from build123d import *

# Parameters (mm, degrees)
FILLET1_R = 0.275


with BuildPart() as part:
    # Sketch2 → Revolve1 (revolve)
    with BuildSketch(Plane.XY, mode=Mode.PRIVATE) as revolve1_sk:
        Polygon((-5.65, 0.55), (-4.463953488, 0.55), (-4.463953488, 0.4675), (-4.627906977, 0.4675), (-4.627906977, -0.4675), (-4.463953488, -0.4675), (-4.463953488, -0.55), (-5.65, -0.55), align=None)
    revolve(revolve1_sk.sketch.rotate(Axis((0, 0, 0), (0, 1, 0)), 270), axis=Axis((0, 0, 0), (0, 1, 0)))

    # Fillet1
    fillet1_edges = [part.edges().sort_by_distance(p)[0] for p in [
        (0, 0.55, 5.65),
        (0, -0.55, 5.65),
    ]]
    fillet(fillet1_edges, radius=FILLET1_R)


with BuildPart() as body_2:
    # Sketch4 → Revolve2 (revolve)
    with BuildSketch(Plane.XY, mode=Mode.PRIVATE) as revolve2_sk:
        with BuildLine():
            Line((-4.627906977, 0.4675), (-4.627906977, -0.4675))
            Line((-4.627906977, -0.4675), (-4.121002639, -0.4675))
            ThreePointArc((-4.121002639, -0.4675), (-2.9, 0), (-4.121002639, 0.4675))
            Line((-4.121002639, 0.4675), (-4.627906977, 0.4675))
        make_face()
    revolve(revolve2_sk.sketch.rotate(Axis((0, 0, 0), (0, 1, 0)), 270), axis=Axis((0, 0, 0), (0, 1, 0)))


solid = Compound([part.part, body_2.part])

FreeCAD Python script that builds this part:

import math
import FreeCAD as App
import Part
import Sketcher


def edges_at(feature, points):
    """Names of the edges that pass closest to the given points."""
    edges = feature.Shape.Edges
    near = lambda p: min(range(len(edges)), key=lambda i: edges[i].distToShape(Part.Vertex(*p))[0])
    return sorted({f"Edge{near(p) + 1}" for p in points})

doc = App.newDocument("Part")
body = doc.addObject("PartDesign::Body", "Body")

sketch1 = body.newObject("Sketcher::SketchObject", "Sketch")
sketch1.AttachmentSupport = (doc.getObject("XY_Plane"), [""])
sketch1.MapMode = "FlatFace"
sketch1.addGeometry(Part.LineSegment(App.Vector(-4.463953, 0.55, 0), App.Vector(-5.65, 0.55, 0)), False)
sketch1.addGeometry(Part.LineSegment(App.Vector(-5.65, 0.55, 0), App.Vector(-5.65, -0.55, 0)), False)
sketch1.addGeometry(Part.LineSegment(App.Vector(-5.65, -0.55, 0), App.Vector(-4.463953, -0.55, 0)), False)
sketch1.addGeometry(Part.LineSegment(App.Vector(-4.463953, -0.55, 0), App.Vector(-4.463953, -0.4675, 0)), False)
sketch1.addGeometry(Part.LineSegment(App.Vector(-4.463953, -0.4675, 0), App.Vector(-4.627907, -0.4675, 0)), False)
sketch1.addGeometry(Part.LineSegment(App.Vector(-4.627907, -0.4675, 0), App.Vector(-4.627907, 0.4675, 0)), False)
sketch1.addGeometry(Part.LineSegment(App.Vector(-4.627907, 0.4675, 0), App.Vector(-4.463953, 0.4675, 0)), False)
sketch1.addGeometry(Part.LineSegment(App.Vector(-4.463953, 0.4675, 0), App.Vector(-4.463953, 0.55, 0)), False)
sketch1.addConstraint(Sketcher.Constraint("Coincident", 0, 2, 1, 1))
sketch1.addConstraint(Sketcher.Constraint("Coincident", 1, 2, 2, 1))
sketch1.addConstraint(Sketcher.Constraint("Coincident", 2, 2, 3, 1))
sketch1.addConstraint(Sketcher.Constraint("Coincident", 3, 2, 4, 1))
sketch1.addConstraint(Sketcher.Constraint("Coincident", 4, 2, 5, 1))
sketch1.addConstraint(Sketcher.Constraint("Coincident", 5, 2, 6, 1))
sketch1.addConstraint(Sketcher.Constraint("Coincident", 6, 2, 7, 1))
sketch1.addConstraint(Sketcher.Constraint("Coincident", 7, 2, 0, 1))
sketch1.addConstraint(Sketcher.Constraint("Horizontal", 0))
sketch1.addConstraint(Sketcher.Constraint("Vertical", 1))
sketch1.addConstraint(Sketcher.Constraint("Horizontal", 2))
sketch1.addConstraint(Sketcher.Constraint("Vertical", 3))
sketch1.addConstraint(Sketcher.Constraint("Horizontal", 4))
sketch1.addConstraint(Sketcher.Constraint("Vertical", 5))
sketch1.addConstraint(Sketcher.Constraint("Horizontal", 6))
sketch1.addConstraint(Sketcher.Constraint("Vertical", 7))
sketch1.addConstraint(Sketcher.Constraint("Symmetric", 3, 2, 6, 2, -1))
sketch1.addConstraint(Sketcher.Constraint("Equal", 3, 7))
sketch1.addConstraint(Sketcher.Constraint("DistanceY", 1, 2, 1, 1, 1.1))
sketch1.addConstraint(Sketcher.Constraint("DistanceY", 5, 1, 5, 2, 0.935))
sketch1.addConstraint(Sketcher.Constraint("DistanceX", 0, 2, -1, 1, 5.65))
sketch1.addConstraint(Sketcher.Constraint("DistanceX", 0, 2, 0, 1, 1.186047))
sketch1.addConstraint(Sketcher.Constraint("DistanceX", 4, 2, 4, 1, 0.163953))
revolution = body.newObject("PartDesign::Revolution", "Revolution")
revolution.Profile = sketch1
revolution.ReferenceAxis = (sketch1, ["V_Axis"])
revolution.Angle = 360
doc.recompute()

fillet = body.newObject("PartDesign::Fillet", "Fillet")
fillet.Base = (revolution, edges_at(revolution, [(0, 0.55, 5.65), (0, -0.55, 5.65)]))
fillet.Radius = 0.275
body2 = doc.addObject("PartDesign::Body", "Body001")

sketch2 = body2.newObject("Sketcher::SketchObject", "Sketch001")
sketch2.AttachmentSupport = (doc.getObject("XY_Plane001"), [""])
sketch2.MapMode = "FlatFace"
sketch2.addGeometry(Part.LineSegment(App.Vector(-4.627907, 0.4675, 0), App.Vector(-4.627907, -0.4675, 0)), False)
sketch2.addGeometry(Part.LineSegment(App.Vector(-4.627907, -0.4675, 0), App.Vector(-4.121003, -0.4675, 0)), False)
sketch2.addGeometry(Part.ArcOfCircle(Part.Circle(App.Vector(-3.6, 0, 0), App.Vector(0, 0, 1), 0.7), math.radians(-138.098107), math.radians(138.098107)), False)
sketch2.addGeometry(Part.LineSegment(App.Vector(-4.121003, 0.4675, 0), App.Vector(-4.627907, 0.4675, 0)), False)
sketch2.addConstraint(Sketcher.Constraint("Coincident", 0, 2, 1, 1))
sketch2.addConstraint(Sketcher.Constraint("Coincident", 1, 2, 2, 1))
sketch2.addConstraint(Sketcher.Constraint("Coincident", 2, 2, 3, 1))
sketch2.addConstraint(Sketcher.Constraint("Coincident", 3, 2, 0, 1))
sketch2.addConstraint(Sketcher.Constraint("Vertical", 0))
sketch2.addConstraint(Sketcher.Constraint("Horizontal", 1))
sketch2.addConstraint(Sketcher.Constraint("Horizontal", 3))
sketch2.addConstraint(Sketcher.Constraint("Symmetric", 1, 2, 2, 2, -1))
sketch2.addConstraint(Sketcher.Constraint("Radius", 2, 0.7))
sketch2.addConstraint(Sketcher.Constraint("DistanceX", 2, 3, -1, 1, 3.6))
sketch2.addConstraint(Sketcher.Constraint("DistanceY", 0, 2, 0, 1, 0.935))
sketch2.addConstraint(Sketcher.Constraint("DistanceX", 1, 1, 1, 2, 0.506904))
revolution2 = body2.newObject("PartDesign::Revolution", "Revolution001")
revolution2.Profile = sketch2
revolution2.ReferenceAxis = (sketch2, ["V_Axis"])
revolution2.Angle = 360

doc.recompute()
